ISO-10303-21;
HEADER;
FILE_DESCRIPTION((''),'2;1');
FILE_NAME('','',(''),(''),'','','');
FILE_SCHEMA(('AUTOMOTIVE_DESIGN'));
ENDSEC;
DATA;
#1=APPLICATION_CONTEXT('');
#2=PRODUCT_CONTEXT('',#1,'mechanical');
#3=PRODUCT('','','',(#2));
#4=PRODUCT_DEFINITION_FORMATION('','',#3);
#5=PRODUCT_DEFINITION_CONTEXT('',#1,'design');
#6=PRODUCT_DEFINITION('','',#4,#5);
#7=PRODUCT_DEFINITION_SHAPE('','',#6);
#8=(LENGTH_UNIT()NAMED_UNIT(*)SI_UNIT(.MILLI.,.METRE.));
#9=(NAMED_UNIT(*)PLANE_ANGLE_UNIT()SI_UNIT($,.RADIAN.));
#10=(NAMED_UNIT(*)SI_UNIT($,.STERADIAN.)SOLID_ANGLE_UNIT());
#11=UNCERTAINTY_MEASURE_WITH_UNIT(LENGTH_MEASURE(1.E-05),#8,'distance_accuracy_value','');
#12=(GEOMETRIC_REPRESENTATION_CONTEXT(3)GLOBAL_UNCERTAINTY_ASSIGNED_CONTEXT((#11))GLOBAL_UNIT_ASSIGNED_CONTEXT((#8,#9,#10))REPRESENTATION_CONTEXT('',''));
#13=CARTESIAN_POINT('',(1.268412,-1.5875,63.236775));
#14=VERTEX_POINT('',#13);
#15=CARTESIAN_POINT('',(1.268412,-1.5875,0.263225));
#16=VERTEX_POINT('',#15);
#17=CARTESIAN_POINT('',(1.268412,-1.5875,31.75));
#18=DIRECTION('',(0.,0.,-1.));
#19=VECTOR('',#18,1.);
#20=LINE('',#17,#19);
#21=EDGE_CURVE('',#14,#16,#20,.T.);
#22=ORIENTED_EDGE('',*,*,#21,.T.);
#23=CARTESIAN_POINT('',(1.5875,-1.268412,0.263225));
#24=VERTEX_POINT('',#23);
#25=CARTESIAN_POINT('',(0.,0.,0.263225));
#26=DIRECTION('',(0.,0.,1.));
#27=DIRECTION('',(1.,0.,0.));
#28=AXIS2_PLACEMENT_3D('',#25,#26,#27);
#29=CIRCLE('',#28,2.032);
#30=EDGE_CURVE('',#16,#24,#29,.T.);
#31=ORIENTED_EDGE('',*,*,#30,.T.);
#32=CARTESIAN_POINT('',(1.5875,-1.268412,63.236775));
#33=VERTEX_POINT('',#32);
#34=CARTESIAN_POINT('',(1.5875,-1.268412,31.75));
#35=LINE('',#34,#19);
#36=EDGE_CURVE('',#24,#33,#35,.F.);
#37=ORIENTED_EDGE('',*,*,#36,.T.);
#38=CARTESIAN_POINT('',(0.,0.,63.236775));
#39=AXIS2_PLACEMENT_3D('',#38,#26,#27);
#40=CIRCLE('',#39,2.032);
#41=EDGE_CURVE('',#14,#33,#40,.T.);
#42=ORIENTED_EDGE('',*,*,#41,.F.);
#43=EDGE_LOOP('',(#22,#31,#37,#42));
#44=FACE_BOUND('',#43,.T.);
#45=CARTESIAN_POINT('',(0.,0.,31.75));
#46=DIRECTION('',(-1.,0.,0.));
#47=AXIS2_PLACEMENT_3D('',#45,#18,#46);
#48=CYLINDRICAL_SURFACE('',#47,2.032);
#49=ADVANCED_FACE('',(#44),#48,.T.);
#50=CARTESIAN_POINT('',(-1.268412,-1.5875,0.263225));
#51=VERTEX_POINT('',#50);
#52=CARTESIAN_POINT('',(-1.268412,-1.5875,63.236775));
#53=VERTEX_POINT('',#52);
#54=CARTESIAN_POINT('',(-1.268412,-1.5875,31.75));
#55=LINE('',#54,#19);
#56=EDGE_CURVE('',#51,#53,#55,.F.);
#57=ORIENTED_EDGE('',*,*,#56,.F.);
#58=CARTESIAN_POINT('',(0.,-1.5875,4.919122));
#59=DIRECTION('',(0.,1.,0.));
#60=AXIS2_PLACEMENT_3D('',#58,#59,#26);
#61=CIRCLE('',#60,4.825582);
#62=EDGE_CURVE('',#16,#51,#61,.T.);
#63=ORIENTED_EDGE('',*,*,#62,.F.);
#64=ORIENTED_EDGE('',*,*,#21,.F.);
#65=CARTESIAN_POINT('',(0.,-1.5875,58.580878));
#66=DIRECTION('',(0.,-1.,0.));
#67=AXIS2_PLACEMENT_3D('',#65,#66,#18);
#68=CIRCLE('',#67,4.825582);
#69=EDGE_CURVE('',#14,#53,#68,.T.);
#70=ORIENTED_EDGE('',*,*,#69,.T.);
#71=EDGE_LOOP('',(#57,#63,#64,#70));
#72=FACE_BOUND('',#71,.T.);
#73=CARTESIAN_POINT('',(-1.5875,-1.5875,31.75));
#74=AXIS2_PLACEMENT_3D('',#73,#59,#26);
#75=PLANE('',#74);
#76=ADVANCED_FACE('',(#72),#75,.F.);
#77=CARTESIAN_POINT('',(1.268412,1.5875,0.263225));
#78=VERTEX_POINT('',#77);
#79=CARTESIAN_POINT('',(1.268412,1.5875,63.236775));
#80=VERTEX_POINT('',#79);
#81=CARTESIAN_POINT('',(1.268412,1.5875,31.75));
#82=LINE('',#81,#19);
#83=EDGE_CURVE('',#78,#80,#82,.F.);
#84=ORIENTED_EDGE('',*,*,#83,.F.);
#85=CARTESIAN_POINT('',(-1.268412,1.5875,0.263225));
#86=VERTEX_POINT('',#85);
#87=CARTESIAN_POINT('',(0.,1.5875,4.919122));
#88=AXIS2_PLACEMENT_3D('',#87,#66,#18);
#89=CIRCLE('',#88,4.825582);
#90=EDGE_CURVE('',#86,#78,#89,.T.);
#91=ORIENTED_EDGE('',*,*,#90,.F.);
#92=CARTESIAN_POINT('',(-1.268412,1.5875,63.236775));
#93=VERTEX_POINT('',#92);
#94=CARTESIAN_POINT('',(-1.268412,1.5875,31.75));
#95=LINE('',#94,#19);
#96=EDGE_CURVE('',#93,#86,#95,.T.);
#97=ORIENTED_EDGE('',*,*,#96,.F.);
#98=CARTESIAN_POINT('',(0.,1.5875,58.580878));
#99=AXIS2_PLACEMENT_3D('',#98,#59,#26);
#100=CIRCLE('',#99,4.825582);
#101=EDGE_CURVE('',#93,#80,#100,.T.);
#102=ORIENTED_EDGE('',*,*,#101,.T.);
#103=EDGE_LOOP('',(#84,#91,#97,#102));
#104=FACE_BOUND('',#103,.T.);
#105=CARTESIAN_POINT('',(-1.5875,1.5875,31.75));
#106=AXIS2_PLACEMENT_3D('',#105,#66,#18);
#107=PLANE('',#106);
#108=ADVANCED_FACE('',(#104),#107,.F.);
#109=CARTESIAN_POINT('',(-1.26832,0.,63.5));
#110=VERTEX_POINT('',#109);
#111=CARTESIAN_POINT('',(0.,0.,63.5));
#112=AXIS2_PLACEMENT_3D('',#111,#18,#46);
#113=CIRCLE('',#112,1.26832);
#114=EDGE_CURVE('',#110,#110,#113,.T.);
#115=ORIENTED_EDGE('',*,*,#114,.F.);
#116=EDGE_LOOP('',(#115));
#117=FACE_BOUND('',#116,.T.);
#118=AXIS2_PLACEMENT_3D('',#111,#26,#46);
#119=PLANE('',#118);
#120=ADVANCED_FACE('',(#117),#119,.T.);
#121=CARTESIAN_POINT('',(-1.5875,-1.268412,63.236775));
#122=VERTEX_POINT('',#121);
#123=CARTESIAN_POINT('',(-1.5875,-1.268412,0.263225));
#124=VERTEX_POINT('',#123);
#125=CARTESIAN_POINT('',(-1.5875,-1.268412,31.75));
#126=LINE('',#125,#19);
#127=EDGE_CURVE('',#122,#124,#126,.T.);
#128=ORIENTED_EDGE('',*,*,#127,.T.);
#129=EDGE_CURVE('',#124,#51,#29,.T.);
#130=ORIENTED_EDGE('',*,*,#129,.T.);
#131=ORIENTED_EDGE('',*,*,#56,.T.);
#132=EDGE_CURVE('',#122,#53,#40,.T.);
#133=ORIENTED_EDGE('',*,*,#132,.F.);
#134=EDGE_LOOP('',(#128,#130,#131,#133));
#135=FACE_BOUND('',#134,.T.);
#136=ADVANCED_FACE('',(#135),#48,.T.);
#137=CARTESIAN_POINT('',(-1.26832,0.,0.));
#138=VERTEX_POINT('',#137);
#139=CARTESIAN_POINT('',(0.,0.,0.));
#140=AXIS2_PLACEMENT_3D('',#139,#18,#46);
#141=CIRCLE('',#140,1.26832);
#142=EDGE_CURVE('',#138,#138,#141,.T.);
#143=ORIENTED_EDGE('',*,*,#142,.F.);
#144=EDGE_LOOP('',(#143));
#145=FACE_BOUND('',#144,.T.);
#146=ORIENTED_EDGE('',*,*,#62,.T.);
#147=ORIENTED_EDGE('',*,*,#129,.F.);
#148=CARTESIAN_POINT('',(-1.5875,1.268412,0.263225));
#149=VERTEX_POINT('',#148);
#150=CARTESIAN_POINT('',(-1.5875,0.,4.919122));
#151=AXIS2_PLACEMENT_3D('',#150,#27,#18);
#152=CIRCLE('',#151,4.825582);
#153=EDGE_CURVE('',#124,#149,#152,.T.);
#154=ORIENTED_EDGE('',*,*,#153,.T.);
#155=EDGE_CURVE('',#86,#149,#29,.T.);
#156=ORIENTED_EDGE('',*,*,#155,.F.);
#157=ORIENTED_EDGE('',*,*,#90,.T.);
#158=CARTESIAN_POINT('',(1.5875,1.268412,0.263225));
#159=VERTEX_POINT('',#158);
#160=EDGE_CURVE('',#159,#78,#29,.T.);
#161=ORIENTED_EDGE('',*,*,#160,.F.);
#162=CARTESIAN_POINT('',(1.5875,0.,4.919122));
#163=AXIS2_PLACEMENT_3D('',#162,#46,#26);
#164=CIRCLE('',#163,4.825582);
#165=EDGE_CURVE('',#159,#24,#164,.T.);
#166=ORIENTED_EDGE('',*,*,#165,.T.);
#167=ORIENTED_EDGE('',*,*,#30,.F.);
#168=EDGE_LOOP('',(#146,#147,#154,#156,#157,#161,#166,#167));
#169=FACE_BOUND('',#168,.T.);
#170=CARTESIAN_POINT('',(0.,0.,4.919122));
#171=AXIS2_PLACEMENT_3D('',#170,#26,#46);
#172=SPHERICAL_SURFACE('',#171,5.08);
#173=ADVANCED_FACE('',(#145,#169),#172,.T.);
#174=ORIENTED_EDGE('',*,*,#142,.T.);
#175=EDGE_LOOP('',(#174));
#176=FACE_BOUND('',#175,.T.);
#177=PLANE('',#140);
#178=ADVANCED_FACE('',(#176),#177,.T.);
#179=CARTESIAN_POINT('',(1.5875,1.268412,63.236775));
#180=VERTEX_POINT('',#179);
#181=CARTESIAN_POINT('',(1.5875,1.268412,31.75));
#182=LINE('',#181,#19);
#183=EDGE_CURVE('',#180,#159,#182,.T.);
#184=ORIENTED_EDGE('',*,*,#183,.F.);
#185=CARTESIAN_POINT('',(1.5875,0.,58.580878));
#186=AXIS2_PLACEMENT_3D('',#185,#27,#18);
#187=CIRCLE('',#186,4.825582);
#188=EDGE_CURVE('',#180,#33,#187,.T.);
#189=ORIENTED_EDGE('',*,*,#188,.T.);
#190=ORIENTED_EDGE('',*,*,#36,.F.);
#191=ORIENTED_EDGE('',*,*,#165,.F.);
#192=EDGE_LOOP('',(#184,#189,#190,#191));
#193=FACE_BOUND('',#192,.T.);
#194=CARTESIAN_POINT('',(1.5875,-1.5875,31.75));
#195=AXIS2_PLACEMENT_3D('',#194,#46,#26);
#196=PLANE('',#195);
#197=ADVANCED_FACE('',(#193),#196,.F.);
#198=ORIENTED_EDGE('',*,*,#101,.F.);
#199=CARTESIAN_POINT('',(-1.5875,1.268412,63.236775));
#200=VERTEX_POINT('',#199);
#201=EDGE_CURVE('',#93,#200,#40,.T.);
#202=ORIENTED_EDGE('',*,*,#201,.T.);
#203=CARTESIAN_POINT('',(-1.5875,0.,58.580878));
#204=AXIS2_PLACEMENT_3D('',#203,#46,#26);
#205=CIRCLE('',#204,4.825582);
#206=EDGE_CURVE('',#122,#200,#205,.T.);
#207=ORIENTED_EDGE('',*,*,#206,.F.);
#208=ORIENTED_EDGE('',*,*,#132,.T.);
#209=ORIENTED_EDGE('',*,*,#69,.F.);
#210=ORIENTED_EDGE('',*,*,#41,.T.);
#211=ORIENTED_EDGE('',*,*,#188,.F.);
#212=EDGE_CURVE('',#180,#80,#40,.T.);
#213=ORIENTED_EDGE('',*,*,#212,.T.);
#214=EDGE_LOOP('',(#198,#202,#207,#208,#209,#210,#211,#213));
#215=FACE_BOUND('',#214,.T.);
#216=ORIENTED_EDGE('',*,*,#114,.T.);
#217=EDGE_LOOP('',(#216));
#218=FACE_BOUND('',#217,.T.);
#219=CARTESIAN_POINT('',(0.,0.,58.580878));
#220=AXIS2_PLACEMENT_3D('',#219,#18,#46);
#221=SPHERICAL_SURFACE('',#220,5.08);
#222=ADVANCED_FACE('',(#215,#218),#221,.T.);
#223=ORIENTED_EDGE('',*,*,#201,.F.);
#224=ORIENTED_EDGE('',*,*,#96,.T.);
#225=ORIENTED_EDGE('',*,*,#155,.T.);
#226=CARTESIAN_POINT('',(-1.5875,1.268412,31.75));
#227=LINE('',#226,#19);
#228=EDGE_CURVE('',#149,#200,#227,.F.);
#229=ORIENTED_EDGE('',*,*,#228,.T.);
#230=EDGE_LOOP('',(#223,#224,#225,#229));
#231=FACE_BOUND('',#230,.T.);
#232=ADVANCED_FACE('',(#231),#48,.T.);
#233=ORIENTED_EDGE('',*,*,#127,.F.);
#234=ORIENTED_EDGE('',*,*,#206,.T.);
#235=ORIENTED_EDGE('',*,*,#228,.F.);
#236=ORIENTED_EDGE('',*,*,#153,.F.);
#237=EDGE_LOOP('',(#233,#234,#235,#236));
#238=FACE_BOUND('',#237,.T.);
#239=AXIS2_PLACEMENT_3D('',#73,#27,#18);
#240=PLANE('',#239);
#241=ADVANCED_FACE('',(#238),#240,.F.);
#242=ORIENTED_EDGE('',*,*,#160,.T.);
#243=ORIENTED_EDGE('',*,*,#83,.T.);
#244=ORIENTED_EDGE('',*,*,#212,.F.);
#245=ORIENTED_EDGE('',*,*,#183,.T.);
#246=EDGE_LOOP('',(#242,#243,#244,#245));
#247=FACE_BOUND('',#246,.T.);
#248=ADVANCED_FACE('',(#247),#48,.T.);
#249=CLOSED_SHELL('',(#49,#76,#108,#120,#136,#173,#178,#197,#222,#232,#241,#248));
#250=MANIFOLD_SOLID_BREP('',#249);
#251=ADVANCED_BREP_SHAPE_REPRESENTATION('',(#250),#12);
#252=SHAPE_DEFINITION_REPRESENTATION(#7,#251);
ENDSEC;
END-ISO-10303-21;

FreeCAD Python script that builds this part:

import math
import FreeCAD as App
import Part
import Sketcher

V = App.Vector
Q = App.Units.Quantity


def add_polygon(sketch, points):
    """Adds a closed chain of lines whose ends are joined by coincident constraints."""
    first, n = sketch.GeometryCount, len(points)
    for a, b in zip(points, points[1:] + points[:1]):
        sketch.addGeometry(Part.LineSegment(App.Vector(*a, 0), App.Vector(*b, 0)), False)
    for i in range(n):
        sketch.addConstraint(Sketcher.Constraint("Coincident", first + i, 2, first + (i + 1) % n, 1))

doc = App.newDocument("Part")
params = doc.addObject("Spreadsheet::Sheet", "Params")
for row, (alias, value) in enumerate([
    ("sketch1_width", "0.125 in"),
    ("pad1_length", "1.25 in"),
    ("sketch2_diameter", "0.16 in"),
    ("sketch3_radius", "0.2 in"),
    ("groove_angle", "360 deg"),
], start=1):
    params.set(f"A{row}", alias)
    params.set(f"B{row}", "=" + value)
    params.setAlias(f"B{row}", alias)

body = doc.addObject("PartDesign::Body", "Body")

# Sketch on XY plane
sketch1 = body.newObject("Sketcher::SketchObject", "Sketch")
sketch1.AttachmentSupport = (doc.getObject("XY_Plane"), [""])
sketch1.MapMode = "FlatFace"
add_polygon(sketch1, [(-1.6, 1.6), (-1.6, -1.6), (1.6, -1.6), (1.6, 1.6)])  # lines 0-3
sketch1.addConstraint(Sketcher.Constraint("Vertical", 0))
sketch1.addConstraint(Sketcher.Constraint("Horizontal", 1))
sketch1.addConstraint(Sketcher.Constraint("Vertical", 2))
sketch1.addConstraint(Sketcher.Constraint("Horizontal", 3))
sketch1.addConstraint(Sketcher.Constraint("Symmetric", 0, 2, 2, 2, -1, 1))
sketch1.addConstraint(Sketcher.Constraint("Equal", 3, 0))
sketch1.addConstraint(Sketcher.Constraint("DistanceX", 1, 1, 1, 2, Q("0.125 in")))
sketch1.setExpression("Constraints[10]", "Params.sketch1_width")
pad1 = body.newObject("PartDesign::Pad", "Pad")
pad1.Profile = sketch1
pad1.setExpression("Length", "Params.pad1_length")

# Sketch on XY plane
sketch2 = body.newObject("Sketcher::SketchObject", "Sketch001")
sketch2.AttachmentSupport = (doc.getObject("XY_Plane"), [""])
sketch2.MapMode = "FlatFace"
add_polygon(sketch2, [(5.8, 5.8), (5.8, -5.8), (-5.8, -5.8), (-5.8, 5.8)])  # lines 0-3
sketch2.addGeometry(Part.Circle(V(0, 0, 0), V(0, 0, 1), 2), False)  # 4
sketch2.addConstraint(Sketcher.Constraint("Vertical", 0))
sketch2.addConstraint(Sketcher.Constraint("Horizontal", 1))
sketch2.addConstraint(Sketcher.Constraint("Vertical", 2))
sketch2.addConstraint(Sketcher.Constraint("Horizontal", 3))
sketch2.addConstraint(Sketcher.Constraint("Coincident", 4, 3, -1, 1))
sketch2.addConstraint(Sketcher.Constraint("Diameter", 4, Q("0.16 in")))
sketch2.addConstraint(Sketcher.Constraint("DistanceX", 1, 2, 1, 1, 11.588))
sketch2.addConstraint(Sketcher.Constraint("DistanceY", 0, 2, 0, 1, 11.589))
sketch2.addConstraint(Sketcher.Constraint("DistanceX", -1, 1, 0, 2, 5.794))
sketch2.addConstraint(Sketcher.Constraint("DistanceY", 0, 2, -1, 1, 5.795))
sketch2.setExpression("Constraints[9]", "Params.sketch2_diameter")
pocket1 = body.newObject("PartDesign::Pocket", "Pocket")
pocket1.Profile = sketch2
pocket1.Type = "ThroughAll"
pocket1.Reversed = True

# Sketch on XZ plane
sketch3 = body.newObject("Sketcher::SketchObject", "Sketch002")
sketch3.AttachmentSupport = (doc.getObject("XZ_Plane"), [""])
sketch3.MapMode = "FlatFace"
sketch3.addGeometry(Part.LineSegment(V(-5, -6, 0), V(-5, 4, 0)), False)
sketch3.addGeometry(Part.ArcOfCircle(Part.Circle(V(0, 5, 0), V(0, 0, 1), 5), math.radians(-174), math.radians(-90)), False)
sketch3.addGeometry(Part.LineSegment(V(0, 0, 0), V(0, -6, 0)), False)
sketch3.addGeometry(Part.LineSegment(V(0, -6, 0), V(-5, -6, 0)), False)
sketch3.addConstraint(Sketcher.Constraint("Coincident", 0, 2, 1, 1))
sketch3.addConstraint(Sketcher.Constraint("Coincident", 1, 2, 2, 1))
sketch3.addConstraint(Sketcher.Constraint("Coincident", 2, 2, 3, 1))
sketch3.addConstraint(Sketcher.Constraint("Coincident", 3, 2, 0, 1))
sketch3.addConstraint(Sketcher.Constraint("Vertical", 0))
sketch3.addConstraint(Sketcher.Constraint("Vertical", 2))
sketch3.addConstraint(Sketcher.Constraint("Horizontal", 3))
sketch3.addConstraint(Sketcher.Constraint("PointOnObject", 1, 3, -2))
sketch3.addConstraint(Sketcher.Constraint("PointOnObject", 1, 2, -2))
sketch3.addConstraint(Sketcher.Constraint("Radius", 1, Q("0.2 in")))
sketch3.addConstraint(Sketcher.Constraint("DistanceX", 3, 2, 3, 1, 5.053686))
sketch3.addConstraint(Sketcher.Constraint("DistanceY", 0, 1, 0, 2, 10.143263))
sketch3.addConstraint(Sketcher.Constraint("DistanceY", 2, 2, -1, 1, 5.740531))
sketch3.setExpression("Constraints[9]", "Params.sketch3_radius")
groove = body.newObject("PartDesign::Groove", "Groove")
groove.Profile = sketch3
groove.ReferenceAxis = (sketch3, ["V_Axis"])
groove.setExpression("Angle", "Params.groove_angle")
body2 = doc.addObject("PartDesign::Body", "Body001")
doc.recompute()

body2.BaseFeature = body
doc.recompute()

mirroring = doc.addObject("Part::Mirroring", "Mirroring")
mirroring.Source = body
mirroring.Base = V(0, 0, 31.75)
mirroring.Normal = V(0, 0, -1)
body3 = doc.addObject("PartDesign::Body", "Body002")
body3.BaseFeature = mirroring
boolean = body2.newObject("PartDesign::Boolean", "Boolean")
boolean.Type = "Fuse"
boolean.addObjects([body3])
doc.recompute()
mirroring.Visibility = False

doc.recompute()
